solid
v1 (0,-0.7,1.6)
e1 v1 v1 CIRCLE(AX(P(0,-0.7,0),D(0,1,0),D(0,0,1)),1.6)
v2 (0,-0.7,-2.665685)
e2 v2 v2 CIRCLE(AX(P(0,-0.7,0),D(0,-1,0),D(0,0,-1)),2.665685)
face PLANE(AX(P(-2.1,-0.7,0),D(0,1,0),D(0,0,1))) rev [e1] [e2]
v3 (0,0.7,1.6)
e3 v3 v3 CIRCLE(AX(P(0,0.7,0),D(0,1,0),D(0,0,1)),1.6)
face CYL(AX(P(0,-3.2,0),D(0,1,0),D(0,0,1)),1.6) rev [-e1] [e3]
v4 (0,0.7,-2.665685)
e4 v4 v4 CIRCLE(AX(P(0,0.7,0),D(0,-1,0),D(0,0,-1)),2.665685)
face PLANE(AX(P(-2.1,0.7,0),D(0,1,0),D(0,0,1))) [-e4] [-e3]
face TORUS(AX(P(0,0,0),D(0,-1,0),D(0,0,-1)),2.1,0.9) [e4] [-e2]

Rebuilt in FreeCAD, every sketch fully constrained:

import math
import FreeCAD as App
import Part
import Sketcher
from FreeCAD import Vector
Q = App.Units.Quantity

doc = App.newDocument("Part")
body = doc.addObject("PartDesign::Body", "Body")

sketch1 = body.newObject("Sketcher::SketchObject", "Sketch")
sketch1.AttachmentSupport = (doc.getObject("XY_Plane"), [""])
sketch1.MapMode = "FlatFace"
sketch1.addGeometry([
    Part.ArcOfCircle(Part.Circle(Vector(-2.1, 0, 0), Vector(0, 0, 1), 0.9), math.radians(-51), math.radians(51)),
    Part.LineSegment(Vector(-1.5, 0.7, 0), Vector(-2.7, 0.7, 0)),
    Part.ArcOfCircle(Part.Circle(Vector(-2.1, 0, 0), Vector(0, 0, 1), 0.9), math.radians(129), math.radians(231)),
    Part.LineSegment(Vector(-2.7, -0.7, 0), Vector(-1.5, -0.7, 0)),
], False)
sketch1.addConstraint([
    Sketcher.Constraint("Coincident", 0, 2, 1, 1),
    Sketcher.Constraint("Coincident", 1, 2, 2, 1),
    Sketcher.Constraint("Coincident", 2, 2, 3, 1),
    Sketcher.Constraint("Coincident", 3, 2, 0, 1),
    Sketcher.Constraint("Horizontal", 1),
    Sketcher.Constraint("Horizontal", 3),
    Sketcher.Constraint("Coincident", 2, 3, 0, 3),
    Sketcher.Constraint("Equal", 0, 2),
    Sketcher.Constraint("Symmetric", 1, 2, 2, 2, -1),
    Sketcher.Constraint("Radius", 0, Q("0.9 mm")),
    Sketcher.Constraint("DistanceX", 0, 3, -1, 1, Q("2.1 mm")),
    Sketcher.Constraint("DistanceY", -1, 1, 0, 2, Q("0.7 mm")),
])
revolution = body.newObject("PartDesign::Revolution", "Revolution")
revolution.Profile = sketch1
revolution.ReferenceAxis = (sketch1, ["V_Axis"])
revolution.Angle = 360

sketch2 = body.newObject("Sketcher::SketchObject", "Sketch001")
sketch2.AttachmentSupport = (doc.getObject("XZ_Plane"), [""])
sketch2.MapMode = "FlatFace"
sketch2.AttachmentOffset = App.Placement(Vector(0, 0, -2), App.Rotation())
sketch2.addGeometry(Part.Circle(Vector(0, 0, 0), Vector(0, 0, 1), 1.6), False)
sketch2.addConstraint([
    Sketcher.Constraint("Coincident", 0, 3, -1, 1),
    Sketcher.Constraint("Diameter", 0, Q("3.2 mm")),
])
pocket1 = body.newObject("PartDesign::Pocket", "Pocket")
pocket1.Profile = sketch2
pocket1.Length = 5.2
pocket1.Reversed = True

doc.recompute()
